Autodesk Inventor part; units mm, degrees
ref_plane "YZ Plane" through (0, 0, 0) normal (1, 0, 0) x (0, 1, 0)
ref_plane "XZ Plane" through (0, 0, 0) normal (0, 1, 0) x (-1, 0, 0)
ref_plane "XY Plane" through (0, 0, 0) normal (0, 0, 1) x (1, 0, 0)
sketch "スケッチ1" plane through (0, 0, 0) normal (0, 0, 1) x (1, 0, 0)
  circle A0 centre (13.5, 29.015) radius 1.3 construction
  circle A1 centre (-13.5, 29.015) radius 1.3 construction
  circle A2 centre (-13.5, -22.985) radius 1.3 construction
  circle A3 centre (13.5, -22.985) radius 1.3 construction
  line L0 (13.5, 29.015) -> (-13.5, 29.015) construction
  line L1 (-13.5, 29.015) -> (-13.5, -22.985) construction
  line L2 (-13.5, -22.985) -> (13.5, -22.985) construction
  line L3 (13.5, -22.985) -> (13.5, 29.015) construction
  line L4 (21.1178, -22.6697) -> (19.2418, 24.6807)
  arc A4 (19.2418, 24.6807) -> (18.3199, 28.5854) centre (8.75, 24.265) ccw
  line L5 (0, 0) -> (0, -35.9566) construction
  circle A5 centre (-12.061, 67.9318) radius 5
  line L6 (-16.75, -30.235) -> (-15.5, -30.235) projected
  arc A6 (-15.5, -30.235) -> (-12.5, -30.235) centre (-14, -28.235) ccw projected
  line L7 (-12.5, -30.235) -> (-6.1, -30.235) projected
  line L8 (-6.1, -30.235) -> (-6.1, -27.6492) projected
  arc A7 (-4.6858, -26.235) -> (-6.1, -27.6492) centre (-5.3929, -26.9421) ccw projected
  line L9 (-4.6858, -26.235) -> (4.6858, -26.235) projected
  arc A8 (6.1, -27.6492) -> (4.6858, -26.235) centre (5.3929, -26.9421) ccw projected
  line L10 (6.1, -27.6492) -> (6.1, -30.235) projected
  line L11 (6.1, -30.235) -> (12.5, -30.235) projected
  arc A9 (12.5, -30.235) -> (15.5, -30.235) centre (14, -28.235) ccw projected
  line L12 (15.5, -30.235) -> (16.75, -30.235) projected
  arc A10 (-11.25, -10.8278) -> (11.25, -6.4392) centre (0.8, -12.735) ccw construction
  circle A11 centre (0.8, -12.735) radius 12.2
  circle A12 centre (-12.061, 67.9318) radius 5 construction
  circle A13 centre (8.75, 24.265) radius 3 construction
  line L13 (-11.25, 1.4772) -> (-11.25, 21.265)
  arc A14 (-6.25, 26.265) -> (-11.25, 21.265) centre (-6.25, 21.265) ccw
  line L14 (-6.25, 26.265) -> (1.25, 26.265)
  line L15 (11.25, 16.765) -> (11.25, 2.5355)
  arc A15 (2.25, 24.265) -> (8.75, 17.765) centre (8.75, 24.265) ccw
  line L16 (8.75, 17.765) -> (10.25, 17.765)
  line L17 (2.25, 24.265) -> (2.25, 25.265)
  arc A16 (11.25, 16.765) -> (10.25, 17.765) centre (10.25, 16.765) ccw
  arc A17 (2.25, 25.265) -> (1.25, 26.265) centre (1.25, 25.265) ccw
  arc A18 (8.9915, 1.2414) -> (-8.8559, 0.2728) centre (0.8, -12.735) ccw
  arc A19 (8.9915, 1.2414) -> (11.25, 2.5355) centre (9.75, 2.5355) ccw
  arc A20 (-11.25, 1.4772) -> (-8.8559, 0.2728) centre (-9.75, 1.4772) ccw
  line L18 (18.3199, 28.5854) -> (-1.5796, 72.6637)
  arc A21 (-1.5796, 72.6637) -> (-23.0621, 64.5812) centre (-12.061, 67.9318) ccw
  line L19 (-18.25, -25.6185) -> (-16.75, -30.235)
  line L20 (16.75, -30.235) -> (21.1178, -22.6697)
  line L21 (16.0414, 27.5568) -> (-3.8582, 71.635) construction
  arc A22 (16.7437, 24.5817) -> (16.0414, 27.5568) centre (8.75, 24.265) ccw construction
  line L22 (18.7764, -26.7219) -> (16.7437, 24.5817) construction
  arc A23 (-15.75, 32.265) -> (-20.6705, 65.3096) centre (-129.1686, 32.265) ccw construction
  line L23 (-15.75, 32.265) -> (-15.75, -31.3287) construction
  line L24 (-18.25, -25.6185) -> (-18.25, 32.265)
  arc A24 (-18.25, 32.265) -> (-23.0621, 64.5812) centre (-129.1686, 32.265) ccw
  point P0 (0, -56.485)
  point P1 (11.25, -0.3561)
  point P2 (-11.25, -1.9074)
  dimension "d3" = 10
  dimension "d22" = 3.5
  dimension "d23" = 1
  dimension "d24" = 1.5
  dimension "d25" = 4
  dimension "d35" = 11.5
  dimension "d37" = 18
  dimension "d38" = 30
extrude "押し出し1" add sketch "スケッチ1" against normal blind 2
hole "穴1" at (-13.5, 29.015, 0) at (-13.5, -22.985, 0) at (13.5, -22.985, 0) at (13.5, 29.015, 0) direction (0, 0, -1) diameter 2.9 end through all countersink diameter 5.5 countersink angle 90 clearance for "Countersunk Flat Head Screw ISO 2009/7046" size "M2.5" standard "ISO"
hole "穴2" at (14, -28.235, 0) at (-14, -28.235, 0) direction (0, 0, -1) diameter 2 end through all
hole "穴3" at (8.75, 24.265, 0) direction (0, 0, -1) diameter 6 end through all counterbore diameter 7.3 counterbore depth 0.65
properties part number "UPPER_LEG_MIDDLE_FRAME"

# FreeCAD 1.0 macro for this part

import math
import FreeCAD as App
import Part
import Sketcher
from FreeCAD import Vector
Q = App.Units.Quantity

doc = App.newDocument("Part")
params = doc.addObject("Spreadsheet::Sheet", "Params")
for row, (alias, value) in enumerate([
    ("sketch1_diameter", "10 mm"),
    ("sketch1_radius", "1 mm"),
    ("sketch1_radius2", "11.5 mm"),
    ("sketch1_radius3", "1.5 mm"),
    ("sketch1_height", "1 mm"),
    ("pad1_length", "2 mm"),
    ("sketch2_diameter", "2.9 mm"),
    ("hole_diameter", "2.9 mm"),
    ("hole_csink_diameter", "5.5 mm"),
    ("sketch3_diameter", "2 mm"),
    ("hole2_diameter", "2 mm"),
    ("sketch4_diameter", "6 mm"),
    ("hole3_diameter", "6 mm"),
    ("hole3_cbore_diameter", "7.3 mm"),
    ("hole3_cbore_depth", "0.65 mm"),
], start=1):
    params.set(f"A{row}", alias)
    params.set(f"B{row}", "=" + value)
    params.setAlias(f"B{row}", alias)

body = doc.addObject("PartDesign::Body", "Body")

sketch1 = body.newObject("Sketcher::SketchObject", "Sketch")
sketch1.AttachmentSupport = (doc.getObject("XY_Plane"), [""])
sketch1.MapMode = "FlatFace"
sketch1.addGeometry(Part.LineSegment(Vector(16.8, -30.2, 0), Vector(21.1, -22.7, 0)), False)
sketch1.addGeometry(Part.LineSegment(Vector(21.1, -22.7, 0), Vector(19.2, 24.7, 0)), False)
sketch1.addGeometry(Part.ArcOfCircle(Part.Circle(Vector(8.8, 24.3, 0), Vector(0, 0, 1), 10.5), math.radians(2), math.radians(24)), False)
sketch1.addGeometry(Part.LineSegment(Vector(18.3, 28.6, 0), Vector(-1.6, 72.7, 0)), False)
sketch1.addGeometry(Part.ArcOfCircle(Part.Circle(Vector(-12.1, 67.9, 0), Vector(0, 0, 1), 11.5), math.radians(24), math.radians(197)), False)
sketch1.addGeometry(Part.ArcOfCircle(Part.Circle(Vector(-129.2, 32.3, 0), Vector(0, 0, 1), 110.9), math.radians(0), math.radians(16.94)), False)
sketch1.addGeometry(Part.LineSegment(Vector(-18.2, 32.3, 0), Vector(-18.2, -25.6, 0)), False)
sketch1.addGeometry(Part.LineSegment(Vector(-18.2, -25.6, 0), Vector(-16.8, -30.2, 0)), False)
sketch1.addGeometry(Part.LineSegment(Vector(-16.8, -30.2, 0), Vector(-15.5, -30.2, 0)), False)
sketch1.addGeometry(Part.ArcOfCircle(Part.Circle(Vector(-14, -28.2, 0), Vector(0, 0, 1), 2.5), math.radians(-127), math.radians(-53)), False)
sketch1.addGeometry(Part.LineSegment(Vector(-12.5, -30.2, 0), Vector(-6.1, -30.2, 0)), False)
sketch1.addGeometry(Part.LineSegment(Vector(-6.1, -30.2, 0), Vector(-6.1, -27.6, 0)), False)
sketch1.addGeometry(Part.ArcOfCircle(Part.Circle(Vector(-5.4, -26.9, 0), Vector(0, 0, 1), 1), math.radians(45), math.radians(225)), False)
sketch1.addGeometry(Part.LineSegment(Vector(-4.7, -26.2, 0), Vector(4.7, -26.2, 0)), False)
sketch1.addGeometry(Part.ArcOfCircle(Part.Circle(Vector(5.4, -26.9, 0), Vector(0, 0, 1), 1), math.radians(-45), math.radians(135)), False)
sketch1.addGeometry(Part.LineSegment(Vector(6.1, -27.6, 0), Vector(6.1, -30.2, 0)), False)
sketch1.addGeometry(Part.LineSegment(Vector(6.1, -30.2, 0), Vector(12.5, -30.2, 0)), False)
sketch1.addGeometry(Part.ArcOfCircle(Part.Circle(Vector(14, -28.2, 0), Vector(0, 0, 1), 2.5), math.radians(-127), math.radians(-53)), False)
sketch1.addGeometry(Part.LineSegment(Vector(15.5, -30.2, 0), Vector(16.8, -30.2, 0)), False)
sketch1.addGeometry(Part.Circle(Vector(0.8, -12.7, 0), Vector(0, 0, 1), 12.2), False)
sketch1.addGeometry(Part.ArcOfCircle(Part.Circle(Vector(-9.8, 1.5, 0), Vector(0, 0, 1), 1.5), math.radians(180), math.radians(307)), False)
sketch1.addGeometry(Part.LineSegment(Vector(-11.2, 1.5, 0), Vector(-11.2, 21.3, 0)), False)
sketch1.addGeometry(Part.ArcOfCircle(Part.Circle(Vector(-6.2, 21.3, 0), Vector(0, 0, 1), 5), math.radians(90), math.radians(180)), False)
sketch1.addGeometry(Part.LineSegment(Vector(-6.2, 26.3, 0), Vector(1.2, 26.3, 0)), False)
sketch1.addGeometry(Part.ArcOfCircle(Part.Circle(Vector(1.2, 25.3, 0), Vector(0, 0, 1), 1), math.radians(0), math.radians(90)), False)
sketch1.addGeometry(Part.LineSegment(Vector(2.2, 25.3, 0), Vector(2.2, 24.3, 0)), False)
sketch1.addGeometry(Part.ArcOfCircle(Part.Circle(Vector(8.8, 24.3, 0), Vector(0, 0, 1), 6.5), math.radians(180), math.radians(270)), False)
sketch1.addGeometry(Part.LineSegment(Vector(8.8, 17.8, 0), Vector(10.2, 17.8, 0)), False)
sketch1.addGeometry(Part.ArcOfCircle(Part.Circle(Vector(10.2, 16.8, 0), Vector(0, 0, 1), 1), math.radians(0), math.radians(90)), False)
sketch1.addGeometry(Part.LineSegment(Vector(11.2, 16.8, 0), Vector(11.2, 2.5, 0)), False)
sketch1.addGeometry(Part.ArcOfCircle(Part.Circle(Vector(9.8, 2.5, 0), Vector(0, 0, 1), 1.5), math.radians(-120), math.radians(0)), False)
sketch1.addGeometry(Part.ArcOfCircle(Part.Circle(Vector(0.8, -12.7, 0), Vector(0, 0, 1), 16.2), math.radians(60), math.radians(127)), False)
sketch1.addGeometry(Part.Circle(Vector(-12.1, 67.9, 0), Vector(0, 0, 1), 5), False)
sketch1.addConstraint(Sketcher.Constraint("Coincident", 0, 2, 1, 1))
sketch1.addConstraint(Sketcher.Constraint("Tangent", 1, 2, 2, 1))
sketch1.addConstraint(Sketcher.Constraint("Tangent", 2, 2, 3, 1))
sketch1.addConstraint(Sketcher.Constraint("Tangent", 3, 2, 4, 1))
sketch1.addConstraint(Sketcher.Constraint("Tangent", 4, 2, 5, 2))
sketch1.addConstraint(Sketcher.Constraint("Tangent", 5, 1, 6, 1))
sketch1.addConstraint(Sketcher.Constraint("Coincident", 6, 2, 7, 1))
sketch1.addConstraint(Sketcher.Constraint("Coincident", 7, 2, 8, 1))
sketch1.addConstraint(Sketcher.Constraint("Coincident", 8, 2, 9, 1))
sketch1.addConstraint(Sketcher.Constraint("Coincident", 9, 2, 10, 1))
sketch1.addConstraint(Sketcher.Constraint("Coincident", 10, 2, 11, 1))
sketch1.addConstraint(Sketcher.Constraint("Coincident", 11, 2, 12, 2))
sketch1.addConstraint(Sketcher.Constraint("Coincident", 12, 1, 13, 1))
sketch1.addConstraint(Sketcher.Constraint("Coincident", 13, 2, 14, 2))
sketch1.addConstraint(Sketcher.Constraint("Coincident", 14, 1, 15, 1))
sketch1.addConstraint(Sketcher.Constraint("Coincident", 15, 2, 16, 1))
sketch1.addConstraint(Sketcher.Constraint("Coincident", 16, 2, 17, 1))
sketch1.addConstraint(Sketcher.Constraint("Coincident", 17, 2, 18, 1))
sketch1.addConstraint(Sketcher.Constraint("Coincident", 18, 2, 0, 1))
sketch1.addConstraint(Sketcher.Constraint("Tangent", 20, 1, 21, 1))
sketch1.addConstraint(Sketcher.Constraint("Tangent", 21, 2, 22, 2))
sketch1.addConstraint(Sketcher.Constraint("Tangent", 22, 1, 23, 1))
sketch1.addConstraint(Sketcher.Constraint("Tangent", 23, 2, 24, 2))
sketch1.addConstraint(Sketcher.Constraint("Tangent", 24, 1, 25, 1))
sketch1.addConstraint(Sketcher.Constraint("Tangent", 25, 2, 26, 1))
sketch1.addConstraint(Sketcher.Constraint("Tangent", 26, 2, 27, 1))
sketch1.addConstraint(Sketcher.Constraint("Tangent", 27, 2, 28, 2))
sketch1.addConstraint(Sketcher.Constraint("Tangent", 28, 1, 29, 1))
sketch1.addConstraint(Sketcher.Constraint("Tangent", 29, 2, 30, 2))
sketch1.addConstraint(Sketcher.Constraint("Tangent", 30, 1, 31, 1))
sketch1.addConstraint(Sketcher.Constraint("Tangent", 31, 2, 20, 2))
sketch1.addConstraint(Sketcher.Constraint("Vertical", 6))
sketch1.addConstraint(Sketcher.Constraint("Horizontal", 8))
sketch1.addConstraint(Sketcher.Constraint("Horizontal", 10))
sketch1.addConstraint(Sketcher.Constraint("Vertical", 11))
sketch1.addConstraint(Sketcher.Constraint("Horizontal", 13))
sketch1.addConstraint(Sketcher.Constraint("Vertical", 15))
sketch1.addConstraint(Sketcher.Constraint("Horizontal", 16))
sketch1.addConstraint(Sketcher.Constraint("Horizontal", 18))
sketch1.addConstraint(Sketcher.Constraint("Vertical", 21))
sketch1.addConstraint(Sketcher.Constraint("Horizontal", 23))
sketch1.addConstraint(Sketcher.Constraint("Vertical", 25))
sketch1.addConstraint(Sketcher.Constraint("Horizontal", 27))
sketch1.addConstraint(Sketcher.Constraint("Vertical", 29))
sketch1.addConstraint(Sketcher.Constraint("Coincident", 31, 3, 19, 3))
sketch1.addConstraint(Sketcher.Constraint("Coincident", 32, 3, 4, 3))
sketch1.addConstraint(Sketcher.Constraint("Equal", 12, 14))
sketch1.addConstraint(Sketcher.Constraint("Equal", 9, 17))
sketch1.addConstraint(Sketcher.Constraint("Equal", 14, 24))
sketch1.addConstraint(Sketcher.Constraint("Equal", 24, 28))
sketch1.addConstraint(Sketcher.Constraint("Equal", 20, 30))
sketch1.addConstraint(Sketcher.Constraint("Equal", 22, 32))
sketch1.addConstraint(Sketcher.Constraint("Symmetric", 12, 3, 14, 3, -2))
sketch1.addConstraint(Sketcher.Constraint("Symmetric", 9, 3, 17, 3, -2))
sketch1.addConstraint(Sketcher.Constraint("Symmetric", 10, 2, 15, 2, -2))
sketch1.addConstraint(Sketcher.Constraint("Symmetric", 7, 2, 18, 2, -2))
sketch1.addConstraint(Sketcher.Constraint("Horizontal", 8, 2, 9, 2))
sketch1.addConstraint(Sketcher.Constraint("Diameter", 32, 10.0))
sketch1.addConstraint(Sketcher.Constraint("Radius", 12, 1.0))
sketch1.addConstraint(Sketcher.Constraint("Radius", 4, 11.5))
sketch1.addConstraint(Sketcher.Constraint("Radius", 20, 1.5))
sketch1.addConstraint(Sketcher.Constraint("DistanceY", 25, 2, 25, 1, 1.0))
sketch1.addConstraint(Sketcher.Constraint("DistanceX", 27, 1, 27, 2, 1.5))
sketch1.addConstraint(Sketcher.Constraint("DistanceY", 10, 2, 12, 1, 4.0))
sketch1.addConstraint(Sketcher.Constraint("Diameter", 19, 24.4))
sketch1.addConstraint(Sketcher.Constraint("Radius", 9, 2.5))
sketch1.addConstraint(Sketcher.Constraint("Radius", 26, 6.5))
sketch1.addConstraint(Sketcher.Constraint("Radius", 31, 16.2))
sketch1.addConstraint(Sketcher.Constraint("DistanceX", 6, 2, 7, 2, 1.5))
sketch1.addConstraint(Sketcher.Constraint("DistanceX", 8, 2, 9, 3, 1.5))
sketch1.addConstraint(Sketcher.Constraint("Angle", 0, Q("60.0002 deg")))
sketch1.addConstraint(Sketcher.Constraint("Angle", 7, Q("-72 deg")))
sketch1.addConstraint(Sketcher.Constraint("DistanceX", 10, 1, 10, 2, 6.4))
sketch1.addConstraint(Sketcher.Constraint("DistanceX", 23, 1, 23, 2, 7.5))
sketch1.addConstraint(Sketcher.Constraint("DistanceX", 9, 3, -1, 1, 14.0))
sketch1.addConstraint(Sketcher.Constraint("DistanceY", 19, 3, 22, 3, 34.0))
sketch1.addConstraint(Sketcher.Constraint("DistanceX", 5, 1, 22, 3, 12.0))
sketch1.addConstraint(Sketcher.Constraint("DistanceY", 22, 3, 5, 1, 11.0))
sketch1.addConstraint(Sketcher.Constraint("DistanceX", 8, 1, 8, 2, 1.25))
sketch1.addConstraint(Sketcher.Constraint("DistanceX", -1, 1, 19, 3, 0.8))
sketch1.addConstraint(Sketcher.Constraint("Angle", 1, Q("92.2688 deg")))
sketch1.addConstraint(Sketcher.Constraint("Radius", 2, 10.4977))
sketch1.addConstraint(Sketcher.Constraint("Radius", 5, 110.9166))
sketch1.addConstraint(Sketcher.Constraint("DistanceY", 17, 3, 19, 3, 15.5))
sketch1.addConstraint(Sketcher.Constraint("DistanceY", 2, 3, 24, 3, 0.9997))
sketch1.addConstraint(Sketcher.Constraint("DistanceX", -1, 1, 2, 2, 18.32))
sketch1.addConstraint(Sketcher.Constraint("Distance", 3, 48.362))
sketch1.addConstraint(Sketcher.Constraint("DistanceX", 13, 1, 13, 2, 9.3716))
sketch1.addConstraint(Sketcher.Constraint("DistanceY", 9, 3, -1, 1, 28.235))
sketch1.addConstraint(Sketcher.Constraint("DistanceX", 12, 3, -1, 1, 5.393))
sketch1.setExpression("Constraints[57]", "Params.sketch1_diameter")
sketch1.setExpression("Constraints[58]", "Params.sketch1_radius")
sketch1.setExpression("Constraints[59]", "Params.sketch1_radius2")
sketch1.setExpression("Constraints[60]", "Params.sketch1_radius3")
sketch1.setExpression("Constraints[61]", "Params.sketch1_height")
pad1 = body.newObject("PartDesign::Pad", "Pad")
pad1.Profile = sketch1
pad1.setExpression("Length", "Params.pad1_length")
pad1.Reversed = True

sketch2 = body.newObject("Sketcher::SketchObject", "Sketch001")
sketch2.AttachmentSupport = (doc.getObject("XY_Plane"), [""])
sketch2.MapMode = "FlatFace"
sketch2.addGeometry(Part.Circle(Vector(-13.5, 29, 0), Vector(0, 0, 1), 1.4), False)
sketch2.addGeometry(Part.Circle(Vector(-13.5, -23, 0), Vector(0, 0, 1), 1.4), False)
sketch2.addGeometry(Part.Circle(Vector(13.5, -23, 0), Vector(0, 0, 1), 1.4), False)
sketch2.addGeometry(Part.Circle(Vector(13.5, 29, 0), Vector(0, 0, 1), 1.4), False)
sketch2.addConstraint(Sketcher.Constraint("Equal", 0, 1))
sketch2.addConstraint(Sketcher.Constraint("Equal", 1, 2))
sketch2.addConstraint(Sketcher.Constraint("Equal", 2, 3))
sketch2.addConstraint(Sketcher.Constraint("Symmetric", 1, 3, 2, 3, -2))
sketch2.addConstraint(Sketcher.Constraint("Symmetric", 0, 3, 3, 3, -2))
sketch2.addConstraint(Sketcher.Constraint("Vertical", 0, 3, 1, 3))
sketch2.addConstraint(Sketcher.Constraint("Diameter", 0, 2.9))
sketch2.addConstraint(Sketcher.Constraint("DistanceY", 1, 3, 0, 3, 52.0))
sketch2.addConstraint(Sketcher.Constraint("DistanceX", 1, 3, 2, 3, 27.0))
sketch2.addConstraint(Sketcher.Constraint("DistanceY", -1, 1, 0, 3, 29.015))
sketch2.setExpression("Constraints[6]", "Params.sketch2_diameter")
doc.recompute()
hole = body.newObject("PartDesign::Hole", "Hole")
hole.Profile = sketch2
hole.ThreadType = "None"
hole.setExpression("Diameter", "Params.hole_diameter")
hole.DepthType = "ThroughAll"
hole.HoleCutType = "Countersink"
hole.setExpression("HoleCutDiameter", "Params.hole_csink_diameter")
hole.HoleCutCountersinkAngle = 90

sketch3 = body.newObject("Sketcher::SketchObject", "Sketch002")
sketch3.AttachmentSupport = (doc.getObject("XY_Plane"), [""])
sketch3.MapMode = "FlatFace"
sketch3.addGeometry(Part.Circle(Vector(14, -28.2, 0), Vector(0, 0, 1), 1), False)
sketch3.addGeometry(Part.Circle(Vector(-14, -28.2, 0), Vector(0, 0, 1), 1), False)
sketch3.addConstraint(Sketcher.Constraint("Equal", 0, 1))
sketch3.addConstraint(Sketcher.Constraint("Symmetric", 0, 3, 1, 3, -2))
sketch3.addConstraint(Sketcher.Constraint("Diameter", 0, 2.0))
sketch3.addConstraint(Sketcher.Constraint("DistanceX", -1, 1, 0, 3, 14.0))
sketch3.addConstraint(Sketcher.Constraint("DistanceY", 0, 3, -1, 1, 28.235))
sketch3.setExpression("Constraints[2]", "Params.sketch3_diameter")
doc.recompute()
hole2 = body.newObject("PartDesign::Hole", "Hole001")
hole2.Profile = sketch3
hole2.ThreadType = "None"
hole2.setExpression("Diameter", "Params.hole2_diameter")
hole2.DepthType = "ThroughAll"

sketch4 = body.newObject("Sketcher::SketchObject", "Sketch003")
sketch4.AttachmentSupport = (doc.getObject("XY_Plane"), [""])
sketch4.MapMode = "FlatFace"
sketch4.addGeometry(Part.Circle(Vector(8.8, 24.3, 0), Vector(0, 0, 1), 3), False)
sketch4.addConstraint(Sketcher.Constraint("Diameter", 0, 6.0))
sketch4.addConstraint(Sketcher.Constraint("DistanceX", -1, 1, 0, 3, 8.75))
sketch4.addConstraint(Sketcher.Constraint("DistanceY", -1, 1, 0, 3, 24.265))
sketch4.setExpression("Constraints[0]", "Params.sketch4_diameter")
doc.recompute()
hole3 = body.newObject("PartDesign::Hole", "Hole002")
hole3.Profile = sketch4
hole3.ThreadType = "None"
hole3.setExpression("Diameter", "Params.hole3_diameter")
hole3.DepthType = "ThroughAll"
hole3.HoleCutType = "Counterbore"
hole3.setExpression("HoleCutDiameter", "Params.hole3_cbore_diameter")
hole3.setExpression("HoleCutDepth", "Params.hole3_cbore_depth")

doc.recompute()
